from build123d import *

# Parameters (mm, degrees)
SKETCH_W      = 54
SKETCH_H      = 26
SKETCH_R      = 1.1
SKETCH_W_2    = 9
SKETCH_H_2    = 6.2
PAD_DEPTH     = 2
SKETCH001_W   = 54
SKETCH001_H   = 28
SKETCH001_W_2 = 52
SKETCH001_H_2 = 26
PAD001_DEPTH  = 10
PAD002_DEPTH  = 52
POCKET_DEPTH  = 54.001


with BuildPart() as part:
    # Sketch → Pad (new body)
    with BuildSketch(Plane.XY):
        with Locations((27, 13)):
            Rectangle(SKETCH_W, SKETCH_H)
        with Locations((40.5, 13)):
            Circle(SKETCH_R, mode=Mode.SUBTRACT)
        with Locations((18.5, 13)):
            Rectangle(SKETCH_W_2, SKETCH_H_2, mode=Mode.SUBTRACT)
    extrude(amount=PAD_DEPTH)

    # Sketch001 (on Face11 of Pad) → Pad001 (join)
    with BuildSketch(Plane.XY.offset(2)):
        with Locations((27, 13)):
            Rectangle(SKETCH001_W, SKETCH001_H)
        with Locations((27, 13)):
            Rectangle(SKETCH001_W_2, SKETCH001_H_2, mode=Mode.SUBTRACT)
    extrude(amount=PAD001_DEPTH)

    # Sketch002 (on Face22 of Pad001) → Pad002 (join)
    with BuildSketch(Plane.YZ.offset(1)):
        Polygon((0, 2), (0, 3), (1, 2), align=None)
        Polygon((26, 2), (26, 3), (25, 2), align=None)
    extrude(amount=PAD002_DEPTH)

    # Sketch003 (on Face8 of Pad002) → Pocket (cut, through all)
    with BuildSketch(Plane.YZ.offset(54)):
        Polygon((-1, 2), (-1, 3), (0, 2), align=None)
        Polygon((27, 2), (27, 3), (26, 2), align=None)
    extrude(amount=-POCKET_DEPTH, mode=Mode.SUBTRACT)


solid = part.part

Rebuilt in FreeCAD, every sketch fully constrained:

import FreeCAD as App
import Part
import Sketcher

V = App.Vector

doc = App.newDocument("Part")
body = doc.addObject("PartDesign::Body", "Body")

sketch1 = body.newObject("Sketcher::SketchObject", "Sketch")
sketch1.AttachmentSupport = (doc.getObject("XY_Plane"), [""])
sketch1.MapMode = "FlatFace"
sketch1.addGeometry([
    Part.LineSegment(V(0, 26, 0), V(0, 0, 0)),
    Part.LineSegment(V(0, 0, 0), V(54, 0, 0)),
    Part.LineSegment(V(54, 0, 0), V(54, 26, 0)),
    Part.LineSegment(V(54, 26, 0), V(0, 26, 0)),
    Part.LineSegment(V(23, 9.9, 0), V(14, 9.9, 0)),
    Part.LineSegment(V(14, 9.9, 0), V(14, 16.1, 0)),
    Part.LineSegment(V(14, 16.1, 0), V(23, 16.1, 0)),
    Part.LineSegment(V(23, 16.1, 0), V(23, 9.9, 0)),
    Part.Circle(V(40.5, 13, 0), V(0, 0, 1), 1.1),
], False)
sketch1.addConstraint([
    Sketcher.Constraint("Coincident", 0, 2, 1, 1),
    Sketcher.Constraint("Coincident", 1, 2, 2, 1),
    Sketcher.Constraint("Coincident", 2, 2, 3, 1),
    Sketcher.Constraint("Coincident", 3, 2, 0, 1),
    Sketcher.Constraint("Coincident", 4, 2, 5, 1),
    Sketcher.Constraint("Coincident", 5, 2, 6, 1),
    Sketcher.Constraint("Coincident", 6, 2, 7, 1),
    Sketcher.Constraint("Coincident", 7, 2, 4, 1),
    Sketcher.Constraint("Vertical", 0),
    Sketcher.Constraint("Horizontal", 1),
    Sketcher.Constraint("Vertical", 2),
    Sketcher.Constraint("Horizontal", 3),
    Sketcher.Constraint("Horizontal", 4),
    Sketcher.Constraint("Vertical", 5),
    Sketcher.Constraint("Horizontal", 6),
    Sketcher.Constraint("Vertical", 7),
    Sketcher.Constraint("Coincident", 0, 2, -1, 1),
    Sketcher.Constraint("Diameter", 8, 2.2),
    Sketcher.Constraint("DistanceX", 1, 1, 1, 2, 54.0),
    Sketcher.Constraint("DistanceX", 4, 2, 4, 1, 9.0),
    Sketcher.Constraint("DistanceY", 0, 2, 0, 1, 26.0),
    Sketcher.Constraint("DistanceY", 5, 1, 5, 2, 6.2),
    Sketcher.Constraint("DistanceY", -1, 1, 8, 3, 13.0),
    Sketcher.Constraint("DistanceX", -1, 1, 4, 2, 14.0),
    Sketcher.Constraint("DistanceX", -1, 1, 8, 3, 40.5),
    Sketcher.Constraint("DistanceY", -1, 1, 4, 2, 9.9),
])
pad1 = body.newObject("PartDesign::Pad", "Pad")
pad1.Profile = sketch1
pad1.Length = 2

sketch2 = body.newObject("Sketcher::SketchObject", "Sketch001")
sketch2.AttachmentSupport = (doc.getObject("XY_Plane"), [""])
sketch2.MapMode = "FlatFace"
sketch2.AttachmentOffset = App.Placement(V(0, 0, 2), App.Rotation())
sketch2.addGeometry([
    Part.LineSegment(V(0, 27, 0), V(0, -1, 0)),
    Part.LineSegment(V(0, -1, 0), V(54, -1, 0)),
    Part.LineSegment(V(54, -1, 0), V(54, 27, 0)),
    Part.LineSegment(V(54, 27, 0), V(0, 27, 0)),
    Part.LineSegment(V(53, 0, 0), V(1, 0, 0)),
    Part.LineSegment(V(1, 0, 0), V(1, 26, 0)),
    Part.LineSegment(V(1, 26, 0), V(53, 26, 0)),
    Part.LineSegment(V(53, 26, 0), V(53, 0, 0)),
], False)
sketch2.addConstraint([
    Sketcher.Constraint("Coincident", 0, 2, 1, 1),
    Sketcher.Constraint("Coincident", 1, 2, 2, 1),
    Sketcher.Constraint("Coincident", 2, 2, 3, 1),
    Sketcher.Constraint("Coincident", 3, 2, 0, 1),
    Sketcher.Constraint("Coincident", 4, 2, 5, 1),
    Sketcher.Constraint("Coincident", 5, 2, 6, 1),
    Sketcher.Constraint("Coincident", 6, 2, 7, 1),
    Sketcher.Constraint("Coincident", 7, 2, 4, 1),
    Sketcher.Constraint("Vertical", 0),
    Sketcher.Constraint("Horizontal", 1),
    Sketcher.Constraint("Vertical", 2),
    Sketcher.Constraint("Horizontal", 3),
    Sketcher.Constraint("Horizontal", 4),
    Sketcher.Constraint("Vertical", 5),
    Sketcher.Constraint("Horizontal", 6),
    Sketcher.Constraint("Vertical", 7),
    Sketcher.Constraint("PointOnObject", 0, 2, -2),
    Sketcher.Constraint("PointOnObject", 4, 2, -1),
    Sketcher.Constraint("DistanceX", 1, 1, 1, 2, 54.0),
    Sketcher.Constraint("DistanceX", 4, 2, 4, 1, 52.0),
    Sketcher.Constraint("DistanceY", 0, 2, 0, 1, 28.0),
    Sketcher.Constraint("DistanceY", 5, 1, 5, 2, 26.0),
    Sketcher.Constraint("DistanceY", 0, 2, -1, 1, 1.0),
    Sketcher.Constraint("DistanceX", -1, 1, 4, 2, 1.0),
])
pad2 = body.newObject("PartDesign::Pad", "Pad001")
pad2.Profile = sketch2
pad2.Length = 10

sketch3 = body.newObject("Sketcher::SketchObject", "Sketch002")
sketch3.AttachmentSupport = (doc.getObject("YZ_Plane"), [""])
sketch3.MapMode = "FlatFace"
sketch3.AttachmentOffset = App.Placement(V(0, 0, 1), App.Rotation())
sketch3.addGeometry([
    Part.LineSegment(V(0, 3, 0), V(0, 2, 0)),
    Part.LineSegment(V(0, 2, 0), V(1, 2, 0)),
    Part.LineSegment(V(1, 2, 0), V(0, 3, 0)),
    Part.LineSegment(V(26, 2, 0), V(26, 3, 0)),
    Part.LineSegment(V(26, 3, 0), V(25, 2, 0)),
    Part.LineSegment(V(25, 2, 0), V(26, 2, 0)),
], False)
sketch3.addConstraint([
    Sketcher.Constraint("Coincident", 0, 2, 1, 1),
    Sketcher.Constraint("Coincident", 1, 2, 2, 1),
    Sketcher.Constraint("Coincident", 2, 2, 0, 1),
    Sketcher.Constraint("Coincident", 3, 2, 4, 1),
    Sketcher.Constraint("Coincident", 4, 2, 5, 1),
    Sketcher.Constraint("Coincident", 5, 2, 3, 1),
    Sketcher.Constraint("Vertical", 0),
    Sketcher.Constraint("Horizontal", 1),
    Sketcher.Constraint("Vertical", 3),
    Sketcher.Constraint("Horizontal", 5),
    Sketcher.Constraint("PointOnObject", 0, 2, -2),
    Sketcher.Constraint("Perpendicular", 2, 4),
    Sketcher.Constraint("Horizontal", 2, 2, 3, 2),
    Sketcher.Constraint("Horizontal", 1, 2, 4, 2),
    Sketcher.Constraint("Equal", 1, 5),
    Sketcher.Constraint("DistanceX", 1, 1, 1, 2, 1.0),
    Sketcher.Constraint("DistanceY", -1, 1, 0, 2, 2.0),
    Sketcher.Constraint("DistanceX", -1, 1, 3, 2, 26.0),
])
pad3 = body.newObject("PartDesign::Pad", "Pad002")
pad3.Profile = sketch3
pad3.Length = 52

sketch4 = body.newObject("Sketcher::SketchObject", "Sketch003")
sketch4.AttachmentSupport = (doc.getObject("YZ_Plane"), [""])
sketch4.MapMode = "FlatFace"
sketch4.AttachmentOffset = App.Placement(V(0, 0, 54), App.Rotation())
sketch4.addGeometry([
    Part.LineSegment(V(-1, 3, 0), V(-1, 2, 0)),
    Part.LineSegment(V(-1, 2, 0), V(0, 2, 0)),
    Part.LineSegment(V(0, 2, 0), V(-1, 3, 0)),
    Part.LineSegment(V(27, 2, 0), V(27, 3, 0)),
    Part.LineSegment(V(27, 3, 0), V(26, 2, 0)),
    Part.LineSegment(V(26, 2, 0), V(27, 2, 0)),
], False)
sketch4.addConstraint([
    Sketcher.Constraint("Coincident", 0, 2, 1, 1),
    Sketcher.Constraint("Coincident", 1, 2, 2, 1),
    Sketcher.Constraint("Coincident", 2, 2, 0, 1),
    Sketcher.Constraint("Coincident", 3, 2, 4, 1),
    Sketcher.Constraint("Coincident", 4, 2, 5, 1),
    Sketcher.Constraint("Coincident", 5, 2, 3, 1),
    Sketcher.Constraint("Vertical", 0),
    Sketcher.Constraint("Horizontal", 1),
    Sketcher.Constraint("Vertical", 3),
    Sketcher.Constraint("Horizontal", 5),
    Sketcher.Constraint("PointOnObject", 1, 2, -2),
    Sketcher.Constraint("Perpendicular", 2, 4),
    Sketcher.Constraint("Horizontal", 2, 2, 3, 2),
    Sketcher.Constraint("Horizontal", 1, 2, 4, 2),
    Sketcher.Constraint("Equal", 1, 5),
    Sketcher.Constraint("DistanceX", 1, 1, 1, 2, 1.0),
    Sketcher.Constraint("DistanceY", -1, 1, 0, 2, 2.0),
    Sketcher.Constraint("DistanceX", -1, 1, 3, 2, 27.0),
])
pocket1 = body.newObject("PartDesign::Pocket", "Pocket")
pocket1.Profile = sketch4
pocket1.Type = "ThroughAll"

doc.recompute()
